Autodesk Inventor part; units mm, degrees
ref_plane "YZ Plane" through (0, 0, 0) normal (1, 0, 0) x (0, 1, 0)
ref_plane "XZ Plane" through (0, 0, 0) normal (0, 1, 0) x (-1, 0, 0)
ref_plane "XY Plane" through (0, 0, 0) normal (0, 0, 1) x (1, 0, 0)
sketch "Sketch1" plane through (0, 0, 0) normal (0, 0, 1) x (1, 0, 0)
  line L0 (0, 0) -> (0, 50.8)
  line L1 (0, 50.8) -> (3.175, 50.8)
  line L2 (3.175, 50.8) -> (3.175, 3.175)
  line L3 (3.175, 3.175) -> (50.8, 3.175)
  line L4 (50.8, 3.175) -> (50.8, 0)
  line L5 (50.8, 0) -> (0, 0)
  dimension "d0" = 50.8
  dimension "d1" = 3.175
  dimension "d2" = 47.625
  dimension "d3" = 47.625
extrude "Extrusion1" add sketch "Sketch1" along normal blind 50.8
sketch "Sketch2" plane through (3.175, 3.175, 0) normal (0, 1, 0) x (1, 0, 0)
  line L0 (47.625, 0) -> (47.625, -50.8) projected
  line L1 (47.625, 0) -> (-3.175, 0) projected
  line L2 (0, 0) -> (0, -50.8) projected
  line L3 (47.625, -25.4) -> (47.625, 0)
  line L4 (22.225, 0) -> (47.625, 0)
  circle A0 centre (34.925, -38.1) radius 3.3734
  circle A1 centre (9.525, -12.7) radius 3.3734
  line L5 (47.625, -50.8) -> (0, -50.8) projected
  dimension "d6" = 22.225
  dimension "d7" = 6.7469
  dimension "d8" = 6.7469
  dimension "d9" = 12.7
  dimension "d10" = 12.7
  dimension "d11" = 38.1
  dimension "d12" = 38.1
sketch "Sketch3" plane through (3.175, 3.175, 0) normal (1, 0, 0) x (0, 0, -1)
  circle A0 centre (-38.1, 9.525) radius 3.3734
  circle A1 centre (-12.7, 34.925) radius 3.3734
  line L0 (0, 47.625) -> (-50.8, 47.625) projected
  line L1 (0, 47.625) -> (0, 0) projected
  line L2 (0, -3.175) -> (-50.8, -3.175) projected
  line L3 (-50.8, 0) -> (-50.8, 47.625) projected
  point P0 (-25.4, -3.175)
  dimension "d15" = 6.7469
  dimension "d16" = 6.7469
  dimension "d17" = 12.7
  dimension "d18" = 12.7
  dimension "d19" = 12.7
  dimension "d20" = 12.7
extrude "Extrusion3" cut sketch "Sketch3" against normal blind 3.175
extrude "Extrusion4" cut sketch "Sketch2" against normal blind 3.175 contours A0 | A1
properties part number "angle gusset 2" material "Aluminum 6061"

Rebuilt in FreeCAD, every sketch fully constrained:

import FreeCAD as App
import Part
import Sketcher
from FreeCAD import Vector
Q = App.Units.Quantity

doc = App.newDocument("Part")
params = doc.addObject("Spreadsheet::Sheet", "Params")
for row, (alias, value) in enumerate([
    ("sketch1_width", "2 in"),
    ("sketch1_width2", "1.875 in"),
    ("pad1_length", "2 in"),
    ("sketch2_diameter", "0.265622 in"),
    ("pocket1_length", "0.125 in"),
    ("sketch3_diameter", "0.265622 in"),
    ("pocket2_length", "0.125 in"),
], start=1):
    params.set(f"A{row}", alias)
    params.set(f"B{row}", "=" + value)
    params.setAlias(f"B{row}", alias)

body = doc.addObject("PartDesign::Body", "Body")

sketch1 = doc.addObject("Sketcher::SketchObject", "Sketch")
body.addObject(sketch1)
sketch1.AttachmentSupport = (doc.XY_Plane, [""])
sketch1.MapMode = "FlatFace"
sketch1.addGeometry([
    Part.LineSegment(Vector(0, 50.8, 0), Vector(0, 0, 0)),
    Part.LineSegment(Vector(0, 0, 0), Vector(50.8, 0, 0)),
    Part.LineSegment(Vector(50.8, 0, 0), Vector(50.8, 3.2, 0)),
    Part.LineSegment(Vector(50.8, 3.2, 0), Vector(3.2, 3.2, 0)),
    Part.LineSegment(Vector(3.2, 3.2, 0), Vector(3.2, 50.8, 0)),
    Part.LineSegment(Vector(3.2, 50.8, 0), Vector(0, 50.8, 0)),
], False)
sketch1.addConstraint([
    Sketcher.Constraint("Coincident", 0, 2, 1, 1),
    Sketcher.Constraint("Coincident", 1, 2, 2, 1),
    Sketcher.Constraint("Coincident", 2, 2, 3, 1),
    Sketcher.Constraint("Coincident", 3, 2, 4, 1),
    Sketcher.Constraint("Coincident", 4, 2, 5, 1),
    Sketcher.Constraint("Coincident", 5, 2, 0, 1),
    Sketcher.Constraint("Vertical", 0),
    Sketcher.Constraint("Horizontal", 1),
    Sketcher.Constraint("Vertical", 2),
    Sketcher.Constraint("Horizontal", 3),
    Sketcher.Constraint("Vertical", 4),
    Sketcher.Constraint("Horizontal", 5),
    Sketcher.Constraint("Coincident", 0, 2, -1, 1),
    Sketcher.Constraint("Equal", 1, 0),
    Sketcher.Constraint("Equal", 5, 2),
    Sketcher.Constraint("DistanceX", 1, 1, 1, 2, Q("2 in")),
    Sketcher.Constraint("DistanceX", 3, 2, 3, 1, Q("1.875 in")),
])
sketch1.setExpression("Constraints[15]", "Params.sketch1_width")
sketch1.setExpression("Constraints[16]", "Params.sketch1_width2")
pad1 = doc.addObject("PartDesign::Pad", "Pad")
body.addObject(pad1)
pad1.Profile = sketch1
pad1.setExpression("Length", "Params.pad1_length")

sketch2 = doc.addObject("Sketcher::SketchObject", "Sketch001")
body.addObject(sketch2)
sketch2.AttachmentSupport = (doc.YZ_Plane, [""])
sketch2.MapMode = "FlatFace"
sketch2.AttachmentOffset = App.Placement(Vector(0, 0, 0.125 * 25.4), App.Rotation())
sketch2.addGeometry([
    Part.Circle(Vector(12.7, 38.1, 0), Vector(0, 0, 1), 3.4),
    Part.Circle(Vector(38.1, 12.7, 0), Vector(0, 0, 1), 3.4),
], False)
sketch2.addConstraint([
    Sketcher.Constraint("Equal", 0, 1),
    Sketcher.Constraint("Diameter", 0, Q("0.265622 in")),
    Sketcher.Constraint("DistanceX", -1, 1, 0, 3, Q("0.5 in")),
    Sketcher.Constraint("DistanceY", -1, 1, 1, 3, Q("0.5 in")),
    Sketcher.Constraint("DistanceX", 0, 3, 1, 3, Q("1 in")),
    Sketcher.Constraint("DistanceY", 1, 3, 0, 3, Q("1 in")),
])
sketch2.setExpression("Constraints[1]", "Params.sketch2_diameter")
pocket1 = doc.addObject("PartDesign::Pocket", "Pocket")
body.addObject(pocket1)
pocket1.Profile = sketch2
pocket1.setExpression("Length", "Params.pocket1_length")

sketch3 = doc.addObject("Sketcher::SketchObject", "Sketch002")
body.addObject(sketch3)
sketch3.AttachmentSupport = (doc.XZ_Plane, [""])
sketch3.MapMode = "FlatFace"
sketch3.AttachmentOffset = App.Placement(Vector(0, 0, -0.125 * 25.4), App.Rotation())
sketch3.addGeometry([
    Part.Circle(Vector(38.1, 38.1, 0), Vector(0, 0, 1), 3.4),
    Part.Circle(Vector(12.7, 12.7, 0), Vector(0, 0, 1), 3.4),
], False)
sketch3.addConstraint([
    Sketcher.Constraint("Equal", 0, 1),
    Sketcher.Constraint("Diameter", 0, Q("0.265622 in")),
    Sketcher.Constraint("DistanceX", -1, 1, 0, 3, Q("1.5 in")),
    Sketcher.Constraint("DistanceY", -1, 1, 0, 3, Q("1.5 in")),
    Sketcher.Constraint("DistanceX", -1, 1, 1, 3, Q("0.5 in")),
    Sketcher.Constraint("DistanceY", -1, 1, 1, 3, Q("0.5 in")),
])
sketch3.setExpression("Constraints[1]", "Params.sketch3_diameter")
pocket2 = doc.addObject("PartDesign::Pocket", "Pocket001")
body.addObject(pocket2)
pocket2.Profile = sketch3
pocket2.setExpression("Length", "Params.pocket2_length")
pocket2.Reversed = True

doc.recompute()
